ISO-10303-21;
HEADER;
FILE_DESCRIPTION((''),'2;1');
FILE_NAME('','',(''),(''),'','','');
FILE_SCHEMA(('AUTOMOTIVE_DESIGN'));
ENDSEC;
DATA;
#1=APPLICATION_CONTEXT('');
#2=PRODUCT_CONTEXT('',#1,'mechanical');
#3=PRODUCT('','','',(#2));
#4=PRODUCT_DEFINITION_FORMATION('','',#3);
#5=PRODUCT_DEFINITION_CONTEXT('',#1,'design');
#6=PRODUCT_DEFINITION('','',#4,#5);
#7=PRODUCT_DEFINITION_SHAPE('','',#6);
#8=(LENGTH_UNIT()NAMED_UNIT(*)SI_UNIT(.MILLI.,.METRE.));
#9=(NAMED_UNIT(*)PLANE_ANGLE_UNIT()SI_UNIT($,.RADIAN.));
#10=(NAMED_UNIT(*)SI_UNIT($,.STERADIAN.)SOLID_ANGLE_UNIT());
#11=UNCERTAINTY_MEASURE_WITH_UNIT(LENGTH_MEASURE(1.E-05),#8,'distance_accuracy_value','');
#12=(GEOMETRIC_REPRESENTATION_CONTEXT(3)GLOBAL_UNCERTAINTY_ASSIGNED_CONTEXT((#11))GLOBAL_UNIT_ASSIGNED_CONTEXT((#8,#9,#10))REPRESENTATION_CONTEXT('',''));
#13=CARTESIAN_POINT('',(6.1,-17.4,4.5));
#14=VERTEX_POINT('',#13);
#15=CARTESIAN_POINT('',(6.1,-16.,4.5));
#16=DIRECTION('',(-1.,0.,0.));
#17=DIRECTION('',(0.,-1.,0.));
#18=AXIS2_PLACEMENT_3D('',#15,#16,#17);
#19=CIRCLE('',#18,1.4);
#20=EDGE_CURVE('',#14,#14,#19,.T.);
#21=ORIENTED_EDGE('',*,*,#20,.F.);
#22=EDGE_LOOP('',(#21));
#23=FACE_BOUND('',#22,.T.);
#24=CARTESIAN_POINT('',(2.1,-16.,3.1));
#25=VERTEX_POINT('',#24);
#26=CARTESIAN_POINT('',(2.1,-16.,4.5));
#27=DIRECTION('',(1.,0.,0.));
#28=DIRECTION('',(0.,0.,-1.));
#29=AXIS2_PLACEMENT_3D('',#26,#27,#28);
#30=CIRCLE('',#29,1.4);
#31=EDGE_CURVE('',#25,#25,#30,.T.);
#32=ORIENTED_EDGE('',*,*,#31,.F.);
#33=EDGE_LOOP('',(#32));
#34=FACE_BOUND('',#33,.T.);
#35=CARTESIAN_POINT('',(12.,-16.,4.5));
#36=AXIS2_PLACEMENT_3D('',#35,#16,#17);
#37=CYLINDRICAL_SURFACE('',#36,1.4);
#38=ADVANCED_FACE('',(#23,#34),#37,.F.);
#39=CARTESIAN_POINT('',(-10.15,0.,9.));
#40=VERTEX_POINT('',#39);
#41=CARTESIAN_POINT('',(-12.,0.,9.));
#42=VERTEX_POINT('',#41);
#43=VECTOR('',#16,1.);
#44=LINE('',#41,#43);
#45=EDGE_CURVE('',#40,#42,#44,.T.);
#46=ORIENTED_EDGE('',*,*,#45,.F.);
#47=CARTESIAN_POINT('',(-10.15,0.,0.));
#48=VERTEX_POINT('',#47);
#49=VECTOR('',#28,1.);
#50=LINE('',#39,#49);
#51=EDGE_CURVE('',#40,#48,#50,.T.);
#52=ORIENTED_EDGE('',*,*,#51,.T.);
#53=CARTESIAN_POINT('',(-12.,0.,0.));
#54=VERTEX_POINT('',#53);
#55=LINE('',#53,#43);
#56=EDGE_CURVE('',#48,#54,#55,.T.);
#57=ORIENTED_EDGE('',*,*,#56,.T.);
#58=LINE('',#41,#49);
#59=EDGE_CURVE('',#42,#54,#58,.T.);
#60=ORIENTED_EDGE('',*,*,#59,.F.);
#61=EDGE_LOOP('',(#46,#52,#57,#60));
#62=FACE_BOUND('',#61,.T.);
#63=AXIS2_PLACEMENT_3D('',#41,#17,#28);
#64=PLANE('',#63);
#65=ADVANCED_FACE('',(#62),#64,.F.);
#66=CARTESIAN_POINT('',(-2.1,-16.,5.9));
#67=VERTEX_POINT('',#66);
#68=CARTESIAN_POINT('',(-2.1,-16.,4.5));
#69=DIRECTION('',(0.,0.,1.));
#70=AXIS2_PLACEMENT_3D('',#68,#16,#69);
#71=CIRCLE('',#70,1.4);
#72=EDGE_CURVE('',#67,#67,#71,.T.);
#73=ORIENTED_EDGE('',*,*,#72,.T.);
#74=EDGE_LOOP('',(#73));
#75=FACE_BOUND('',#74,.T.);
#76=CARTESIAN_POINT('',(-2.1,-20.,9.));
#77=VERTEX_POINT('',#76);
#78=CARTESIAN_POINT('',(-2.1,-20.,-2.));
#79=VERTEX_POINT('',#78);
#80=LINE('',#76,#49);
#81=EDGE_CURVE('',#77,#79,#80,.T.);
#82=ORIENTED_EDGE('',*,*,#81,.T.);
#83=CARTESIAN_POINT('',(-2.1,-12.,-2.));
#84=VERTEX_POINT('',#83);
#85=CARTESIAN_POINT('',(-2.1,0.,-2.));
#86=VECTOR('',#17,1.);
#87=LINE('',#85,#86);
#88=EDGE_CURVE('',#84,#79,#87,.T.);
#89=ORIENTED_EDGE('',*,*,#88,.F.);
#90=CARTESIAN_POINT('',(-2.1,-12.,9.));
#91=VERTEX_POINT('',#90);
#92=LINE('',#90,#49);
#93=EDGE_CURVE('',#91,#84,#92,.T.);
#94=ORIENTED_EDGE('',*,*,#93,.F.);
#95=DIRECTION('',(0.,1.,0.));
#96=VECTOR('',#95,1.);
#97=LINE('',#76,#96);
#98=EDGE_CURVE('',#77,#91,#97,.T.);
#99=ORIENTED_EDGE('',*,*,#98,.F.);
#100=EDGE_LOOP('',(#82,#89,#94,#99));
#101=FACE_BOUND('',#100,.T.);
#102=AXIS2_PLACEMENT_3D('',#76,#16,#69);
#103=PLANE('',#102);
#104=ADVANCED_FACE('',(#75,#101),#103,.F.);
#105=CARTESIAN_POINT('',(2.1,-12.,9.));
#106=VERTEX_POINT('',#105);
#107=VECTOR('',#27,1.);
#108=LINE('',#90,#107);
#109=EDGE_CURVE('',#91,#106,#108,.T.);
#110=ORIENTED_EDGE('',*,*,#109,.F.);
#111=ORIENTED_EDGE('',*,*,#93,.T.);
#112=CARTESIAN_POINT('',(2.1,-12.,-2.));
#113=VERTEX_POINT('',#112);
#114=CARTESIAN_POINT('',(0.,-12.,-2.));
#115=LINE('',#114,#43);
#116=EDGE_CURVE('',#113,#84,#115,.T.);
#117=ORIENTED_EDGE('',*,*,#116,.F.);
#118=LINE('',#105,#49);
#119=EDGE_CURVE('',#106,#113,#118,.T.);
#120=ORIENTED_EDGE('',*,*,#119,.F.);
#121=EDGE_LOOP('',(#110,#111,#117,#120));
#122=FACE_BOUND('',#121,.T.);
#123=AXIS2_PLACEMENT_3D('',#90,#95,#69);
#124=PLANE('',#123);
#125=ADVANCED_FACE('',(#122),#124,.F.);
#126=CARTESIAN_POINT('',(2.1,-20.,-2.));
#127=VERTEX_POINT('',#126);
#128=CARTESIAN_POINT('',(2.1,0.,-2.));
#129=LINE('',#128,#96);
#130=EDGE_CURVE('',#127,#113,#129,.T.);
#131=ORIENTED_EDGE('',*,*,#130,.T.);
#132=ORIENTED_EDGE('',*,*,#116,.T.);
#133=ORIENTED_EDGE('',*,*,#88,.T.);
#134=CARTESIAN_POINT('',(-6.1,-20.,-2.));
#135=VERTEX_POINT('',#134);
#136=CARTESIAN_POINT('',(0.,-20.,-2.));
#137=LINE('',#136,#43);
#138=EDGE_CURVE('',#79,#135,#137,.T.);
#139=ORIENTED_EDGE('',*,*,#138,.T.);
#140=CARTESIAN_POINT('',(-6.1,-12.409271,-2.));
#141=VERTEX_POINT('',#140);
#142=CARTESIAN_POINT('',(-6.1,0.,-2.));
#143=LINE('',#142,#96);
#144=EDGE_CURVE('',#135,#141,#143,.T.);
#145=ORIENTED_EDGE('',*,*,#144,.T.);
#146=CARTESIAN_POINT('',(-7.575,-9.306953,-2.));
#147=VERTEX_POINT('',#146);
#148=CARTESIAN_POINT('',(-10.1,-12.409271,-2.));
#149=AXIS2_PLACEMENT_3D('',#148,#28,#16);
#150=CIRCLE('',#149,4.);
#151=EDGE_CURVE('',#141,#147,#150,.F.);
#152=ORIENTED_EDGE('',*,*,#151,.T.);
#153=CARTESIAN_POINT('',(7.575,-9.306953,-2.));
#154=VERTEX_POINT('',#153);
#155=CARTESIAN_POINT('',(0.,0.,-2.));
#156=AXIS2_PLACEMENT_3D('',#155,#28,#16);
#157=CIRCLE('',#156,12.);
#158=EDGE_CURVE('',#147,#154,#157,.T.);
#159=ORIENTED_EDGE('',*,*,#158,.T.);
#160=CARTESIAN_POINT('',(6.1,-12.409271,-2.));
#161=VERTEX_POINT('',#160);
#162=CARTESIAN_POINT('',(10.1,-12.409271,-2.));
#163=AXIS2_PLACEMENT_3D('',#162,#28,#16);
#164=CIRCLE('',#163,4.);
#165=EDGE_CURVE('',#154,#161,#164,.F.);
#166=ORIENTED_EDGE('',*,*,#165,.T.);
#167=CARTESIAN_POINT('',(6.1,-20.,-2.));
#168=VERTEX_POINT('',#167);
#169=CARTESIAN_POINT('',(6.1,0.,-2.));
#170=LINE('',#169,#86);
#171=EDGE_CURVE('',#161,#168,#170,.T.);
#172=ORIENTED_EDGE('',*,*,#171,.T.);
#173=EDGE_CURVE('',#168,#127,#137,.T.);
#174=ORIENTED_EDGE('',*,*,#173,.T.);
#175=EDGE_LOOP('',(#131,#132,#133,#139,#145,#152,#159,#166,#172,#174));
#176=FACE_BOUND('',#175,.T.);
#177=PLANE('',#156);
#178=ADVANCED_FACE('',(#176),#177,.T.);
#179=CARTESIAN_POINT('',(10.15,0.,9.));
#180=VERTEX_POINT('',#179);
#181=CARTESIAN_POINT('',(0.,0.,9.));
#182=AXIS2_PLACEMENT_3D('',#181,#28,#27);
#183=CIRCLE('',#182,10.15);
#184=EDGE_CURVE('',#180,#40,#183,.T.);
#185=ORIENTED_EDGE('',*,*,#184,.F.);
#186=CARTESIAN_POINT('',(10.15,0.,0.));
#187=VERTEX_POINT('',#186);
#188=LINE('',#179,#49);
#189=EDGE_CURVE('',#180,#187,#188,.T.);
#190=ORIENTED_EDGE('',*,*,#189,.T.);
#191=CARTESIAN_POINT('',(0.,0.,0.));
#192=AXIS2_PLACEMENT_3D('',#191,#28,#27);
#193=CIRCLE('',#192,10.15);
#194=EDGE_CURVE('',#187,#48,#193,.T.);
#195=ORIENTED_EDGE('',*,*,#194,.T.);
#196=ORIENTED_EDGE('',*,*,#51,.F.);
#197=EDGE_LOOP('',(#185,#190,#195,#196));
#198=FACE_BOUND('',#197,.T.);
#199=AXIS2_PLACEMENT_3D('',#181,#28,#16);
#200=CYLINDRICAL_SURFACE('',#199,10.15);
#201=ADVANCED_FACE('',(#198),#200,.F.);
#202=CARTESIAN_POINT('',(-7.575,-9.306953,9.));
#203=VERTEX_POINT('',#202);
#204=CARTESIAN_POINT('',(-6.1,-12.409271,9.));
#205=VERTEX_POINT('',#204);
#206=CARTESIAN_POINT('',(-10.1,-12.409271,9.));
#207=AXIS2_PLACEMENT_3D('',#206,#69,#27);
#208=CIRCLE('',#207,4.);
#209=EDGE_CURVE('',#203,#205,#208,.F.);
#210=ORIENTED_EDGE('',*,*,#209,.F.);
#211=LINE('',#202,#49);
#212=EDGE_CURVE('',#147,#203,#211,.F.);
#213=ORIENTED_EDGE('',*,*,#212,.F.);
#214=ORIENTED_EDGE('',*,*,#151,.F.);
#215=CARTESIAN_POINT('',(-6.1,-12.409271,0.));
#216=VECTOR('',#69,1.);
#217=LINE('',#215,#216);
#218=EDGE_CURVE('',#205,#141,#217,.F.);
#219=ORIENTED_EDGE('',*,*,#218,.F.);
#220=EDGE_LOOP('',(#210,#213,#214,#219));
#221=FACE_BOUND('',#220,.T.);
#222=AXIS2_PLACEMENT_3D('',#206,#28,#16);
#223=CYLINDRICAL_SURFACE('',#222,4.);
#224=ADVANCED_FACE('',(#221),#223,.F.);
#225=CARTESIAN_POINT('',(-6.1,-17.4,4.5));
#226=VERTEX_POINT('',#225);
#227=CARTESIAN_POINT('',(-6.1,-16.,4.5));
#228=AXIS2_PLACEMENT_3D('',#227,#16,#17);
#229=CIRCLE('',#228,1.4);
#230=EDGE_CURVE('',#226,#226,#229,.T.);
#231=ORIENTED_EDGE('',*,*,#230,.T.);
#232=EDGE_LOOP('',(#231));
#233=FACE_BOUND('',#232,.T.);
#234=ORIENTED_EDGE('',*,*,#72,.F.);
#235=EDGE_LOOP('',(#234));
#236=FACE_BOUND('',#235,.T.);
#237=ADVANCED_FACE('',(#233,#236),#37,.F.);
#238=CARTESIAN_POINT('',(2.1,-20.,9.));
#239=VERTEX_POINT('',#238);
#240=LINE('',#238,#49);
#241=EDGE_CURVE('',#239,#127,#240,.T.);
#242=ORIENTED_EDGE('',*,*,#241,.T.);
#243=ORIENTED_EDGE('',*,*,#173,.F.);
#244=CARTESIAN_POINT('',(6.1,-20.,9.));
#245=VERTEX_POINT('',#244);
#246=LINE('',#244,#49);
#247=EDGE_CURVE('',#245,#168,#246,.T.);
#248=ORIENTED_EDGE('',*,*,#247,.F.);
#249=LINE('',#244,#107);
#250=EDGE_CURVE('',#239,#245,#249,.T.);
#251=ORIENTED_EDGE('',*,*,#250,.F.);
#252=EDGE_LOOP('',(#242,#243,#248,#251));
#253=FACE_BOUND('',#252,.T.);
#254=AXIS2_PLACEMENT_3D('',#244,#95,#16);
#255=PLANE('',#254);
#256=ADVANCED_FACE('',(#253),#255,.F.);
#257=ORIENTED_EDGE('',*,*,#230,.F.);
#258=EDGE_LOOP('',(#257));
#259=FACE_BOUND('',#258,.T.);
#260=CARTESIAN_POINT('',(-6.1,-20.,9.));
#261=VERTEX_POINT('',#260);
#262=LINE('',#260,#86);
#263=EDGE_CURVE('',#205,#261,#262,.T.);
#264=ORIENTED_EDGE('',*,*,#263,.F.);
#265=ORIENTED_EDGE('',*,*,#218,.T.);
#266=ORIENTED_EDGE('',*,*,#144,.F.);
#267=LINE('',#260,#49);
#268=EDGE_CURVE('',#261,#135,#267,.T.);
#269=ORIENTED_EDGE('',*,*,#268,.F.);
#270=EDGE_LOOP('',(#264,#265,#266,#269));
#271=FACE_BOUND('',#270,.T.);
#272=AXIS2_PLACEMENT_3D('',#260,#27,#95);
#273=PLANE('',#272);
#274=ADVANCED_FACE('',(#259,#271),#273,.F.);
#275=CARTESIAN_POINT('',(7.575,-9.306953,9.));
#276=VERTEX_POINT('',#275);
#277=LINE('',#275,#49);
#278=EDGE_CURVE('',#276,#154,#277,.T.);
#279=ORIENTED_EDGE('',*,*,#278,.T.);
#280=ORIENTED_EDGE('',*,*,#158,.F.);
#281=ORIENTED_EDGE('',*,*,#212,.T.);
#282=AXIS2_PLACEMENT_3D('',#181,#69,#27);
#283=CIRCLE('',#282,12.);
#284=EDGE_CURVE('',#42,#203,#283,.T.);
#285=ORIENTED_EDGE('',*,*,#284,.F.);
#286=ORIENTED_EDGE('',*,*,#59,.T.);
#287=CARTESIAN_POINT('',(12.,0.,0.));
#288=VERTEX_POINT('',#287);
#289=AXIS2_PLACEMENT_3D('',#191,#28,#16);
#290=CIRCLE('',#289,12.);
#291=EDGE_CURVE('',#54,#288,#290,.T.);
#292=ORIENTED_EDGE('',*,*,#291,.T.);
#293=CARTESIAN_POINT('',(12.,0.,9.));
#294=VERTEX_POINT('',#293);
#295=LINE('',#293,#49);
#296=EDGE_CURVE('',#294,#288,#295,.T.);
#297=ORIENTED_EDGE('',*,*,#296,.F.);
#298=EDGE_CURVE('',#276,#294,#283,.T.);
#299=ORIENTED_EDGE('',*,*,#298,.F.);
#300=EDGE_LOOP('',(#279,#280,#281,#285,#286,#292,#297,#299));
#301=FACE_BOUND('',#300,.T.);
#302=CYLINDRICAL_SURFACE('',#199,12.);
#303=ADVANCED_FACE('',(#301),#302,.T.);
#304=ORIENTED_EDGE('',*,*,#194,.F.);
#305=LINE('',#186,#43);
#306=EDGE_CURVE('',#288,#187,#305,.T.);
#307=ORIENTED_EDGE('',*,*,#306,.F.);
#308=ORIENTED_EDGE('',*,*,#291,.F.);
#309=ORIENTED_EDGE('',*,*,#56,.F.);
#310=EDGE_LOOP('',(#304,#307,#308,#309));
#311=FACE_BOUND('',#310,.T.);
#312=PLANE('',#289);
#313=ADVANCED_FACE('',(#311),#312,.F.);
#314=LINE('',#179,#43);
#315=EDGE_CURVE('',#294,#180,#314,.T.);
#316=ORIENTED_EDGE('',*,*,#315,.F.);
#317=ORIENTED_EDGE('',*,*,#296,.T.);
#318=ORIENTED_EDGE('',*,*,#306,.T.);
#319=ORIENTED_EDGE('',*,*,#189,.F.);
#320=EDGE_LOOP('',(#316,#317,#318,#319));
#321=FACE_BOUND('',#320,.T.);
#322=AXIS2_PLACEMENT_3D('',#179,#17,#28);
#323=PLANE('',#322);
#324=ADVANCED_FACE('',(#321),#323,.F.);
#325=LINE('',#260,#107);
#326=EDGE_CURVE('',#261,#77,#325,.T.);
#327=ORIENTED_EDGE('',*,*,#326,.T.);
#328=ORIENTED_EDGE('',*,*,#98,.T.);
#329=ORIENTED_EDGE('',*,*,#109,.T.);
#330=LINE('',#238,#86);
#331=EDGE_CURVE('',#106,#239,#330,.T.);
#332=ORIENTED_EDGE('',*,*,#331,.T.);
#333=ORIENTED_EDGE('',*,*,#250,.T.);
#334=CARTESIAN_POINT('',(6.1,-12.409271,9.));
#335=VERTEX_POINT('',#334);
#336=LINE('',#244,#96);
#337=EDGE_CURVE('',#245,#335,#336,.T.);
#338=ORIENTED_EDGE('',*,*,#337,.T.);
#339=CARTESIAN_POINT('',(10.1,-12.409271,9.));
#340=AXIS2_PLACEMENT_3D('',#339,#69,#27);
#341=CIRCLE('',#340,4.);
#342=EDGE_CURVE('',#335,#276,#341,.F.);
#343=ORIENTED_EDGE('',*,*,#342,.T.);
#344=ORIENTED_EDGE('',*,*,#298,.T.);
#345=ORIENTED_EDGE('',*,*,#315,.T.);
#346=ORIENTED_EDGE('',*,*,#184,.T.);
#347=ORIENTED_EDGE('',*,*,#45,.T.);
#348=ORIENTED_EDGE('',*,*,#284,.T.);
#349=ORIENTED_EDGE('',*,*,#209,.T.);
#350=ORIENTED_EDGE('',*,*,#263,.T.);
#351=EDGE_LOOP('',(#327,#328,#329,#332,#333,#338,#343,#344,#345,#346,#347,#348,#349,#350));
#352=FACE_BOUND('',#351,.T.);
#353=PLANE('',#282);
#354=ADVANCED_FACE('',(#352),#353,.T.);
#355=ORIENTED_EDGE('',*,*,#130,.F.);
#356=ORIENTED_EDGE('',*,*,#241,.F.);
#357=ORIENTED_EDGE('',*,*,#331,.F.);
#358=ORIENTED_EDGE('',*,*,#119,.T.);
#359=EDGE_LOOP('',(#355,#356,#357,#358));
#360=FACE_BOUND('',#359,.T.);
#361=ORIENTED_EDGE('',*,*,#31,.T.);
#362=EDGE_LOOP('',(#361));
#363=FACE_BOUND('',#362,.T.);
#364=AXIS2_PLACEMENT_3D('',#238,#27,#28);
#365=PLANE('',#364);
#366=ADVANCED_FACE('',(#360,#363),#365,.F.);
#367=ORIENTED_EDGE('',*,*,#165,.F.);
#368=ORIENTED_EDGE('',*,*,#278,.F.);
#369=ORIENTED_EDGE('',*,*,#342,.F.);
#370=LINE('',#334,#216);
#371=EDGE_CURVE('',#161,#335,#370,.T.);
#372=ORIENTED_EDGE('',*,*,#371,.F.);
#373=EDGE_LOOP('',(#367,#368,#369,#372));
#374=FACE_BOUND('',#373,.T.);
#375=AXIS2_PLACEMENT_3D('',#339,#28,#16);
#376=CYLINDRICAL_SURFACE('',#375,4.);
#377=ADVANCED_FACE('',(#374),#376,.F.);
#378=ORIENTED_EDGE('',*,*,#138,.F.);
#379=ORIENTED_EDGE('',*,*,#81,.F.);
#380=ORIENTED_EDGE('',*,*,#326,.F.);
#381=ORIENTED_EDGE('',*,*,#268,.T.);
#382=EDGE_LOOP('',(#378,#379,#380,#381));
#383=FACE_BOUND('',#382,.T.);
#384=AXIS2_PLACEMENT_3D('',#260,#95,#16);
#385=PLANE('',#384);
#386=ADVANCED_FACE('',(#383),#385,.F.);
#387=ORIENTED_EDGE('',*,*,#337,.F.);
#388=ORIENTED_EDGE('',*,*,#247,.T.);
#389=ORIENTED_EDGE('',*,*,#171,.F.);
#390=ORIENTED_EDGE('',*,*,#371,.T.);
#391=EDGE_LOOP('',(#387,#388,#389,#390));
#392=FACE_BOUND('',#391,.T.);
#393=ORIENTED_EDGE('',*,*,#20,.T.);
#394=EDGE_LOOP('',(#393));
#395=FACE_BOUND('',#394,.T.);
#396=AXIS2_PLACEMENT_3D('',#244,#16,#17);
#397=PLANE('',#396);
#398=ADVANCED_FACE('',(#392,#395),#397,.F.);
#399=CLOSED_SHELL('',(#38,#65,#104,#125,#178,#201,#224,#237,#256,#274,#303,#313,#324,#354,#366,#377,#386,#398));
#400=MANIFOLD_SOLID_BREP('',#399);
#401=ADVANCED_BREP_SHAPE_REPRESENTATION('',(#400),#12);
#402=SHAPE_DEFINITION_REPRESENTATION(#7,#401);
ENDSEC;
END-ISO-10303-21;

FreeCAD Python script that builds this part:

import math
import FreeCAD as App
import Part
import Sketcher
from FreeCAD import Vector


def edges_at(feature, points):
    """Names of the edges that pass closest to the given points."""
    edges = feature.Shape.Edges
    near = lambda p: min(range(len(edges)), key=lambda i: edges[i].distToShape(Part.Vertex(*p))[0])
    return sorted({f"Edge{near(p) + 1}" for p in points})

doc = App.newDocument("Part")
body = doc.addObject("PartDesign::Body", "Body")

# Sketch on XY plane
sketch1 = body.newObject("Sketcher::SketchObject", "Sketch")
sketch1.AttachmentSupport = (doc.getObject("XY_Plane"), [""])
sketch1.MapMode = "FlatFace"
sketch1.addGeometry([
    Part.LineSegment(Vector(-6.1, -20, 0), Vector(-2.1, -20, 0)),  # 0
    Part.LineSegment(Vector(-2.1, -20, 0), Vector(-2.1, -12, 0)),  # 1
    Part.LineSegment(Vector(-2.1, -12, 0), Vector(2.1, -12, 0)),  # 2
    Part.LineSegment(Vector(2.1, -12, 0), Vector(2.1, -20, 0)),  # 3
    Part.LineSegment(Vector(2.1, -20, 0), Vector(6.1, -20, 0)),  # 4
    Part.LineSegment(Vector(6.1, -20, 0), Vector(6.1, -10.3, 0)),  # 5
    Part.ArcOfCircle(Part.Circle(Vector(0, 0, 0), Vector(0, 0, 1), 12), math.radians(-59), math.radians(0)),  # 6
    Part.LineSegment(Vector(12, 0, 0), Vector(10.2, 0, 0)),  # 7
    Part.ArcOfCircle(Part.Circle(Vector(0, 0, 0), Vector(0, 0, 1), 10.2), math.radians(180), math.radians(360)),  # 8
    Part.LineSegment(Vector(-10.2, 0, 0), Vector(-12, 0, 0)),  # 9
    Part.ArcOfCircle(Part.Circle(Vector(0, 0, 0), Vector(0, 0, 1), 12), math.radians(-180), math.radians(-121)),  # 10
    Part.LineSegment(Vector(-6.1, -10.3, 0), Vector(-6.1, -20, 0)),  # 11
], False)
sketch1.addConstraint([
    Sketcher.Constraint("Coincident", 0, 2, 1, 1),
    Sketcher.Constraint("Coincident", 1, 2, 2, 1),
    Sketcher.Constraint("Coincident", 2, 2, 3, 1),
    Sketcher.Constraint("Coincident", 3, 2, 4, 1),
    Sketcher.Constraint("Coincident", 4, 2, 5, 1),
    Sketcher.Constraint("Coincident", 5, 2, 6, 1),
    Sketcher.Constraint("Coincident", 6, 2, 7, 1),
    Sketcher.Constraint("Coincident", 7, 2, 8, 2),
    Sketcher.Constraint("Coincident", 8, 1, 9, 1),
    Sketcher.Constraint("Coincident", 9, 2, 10, 1),
    Sketcher.Constraint("Coincident", 10, 2, 11, 1),
    Sketcher.Constraint("Coincident", 11, 2, 0, 1),
    Sketcher.Constraint("Horizontal", 0),
    Sketcher.Constraint("Vertical", 1),
    Sketcher.Constraint("Horizontal", 2),
    Sketcher.Constraint("Vertical", 3),
    Sketcher.Constraint("Horizontal", 4),
    Sketcher.Constraint("Vertical", 5),
    Sketcher.Constraint("Horizontal", 7),
    Sketcher.Constraint("Horizontal", 9),
    Sketcher.Constraint("Vertical", 11),
    Sketcher.Constraint("Coincident", 6, 3, -1, 1),
    Sketcher.Constraint("Coincident", 8, 3, -1, 1),
    Sketcher.Constraint("Coincident", 10, 3, -1, 1),
    Sketcher.Constraint("Equal", 6, 10),
    Sketcher.Constraint("Symmetric", 0, 2, 3, 2, -2),
    Sketcher.Constraint("PointOnObject", 6, 2, -1),
    Sketcher.Constraint("PointOnObject", 8, 1, -1),
    Sketcher.Constraint("Horizontal", 5, 2, 10, 2),
    Sketcher.Constraint("Radius", 6, 12.0),
    Sketcher.Constraint("DistanceX", 0, 1, 0, 2, 4.0),
    Sketcher.Constraint("DistanceY", 1, 1, 1, 2, 8.0),
    Sketcher.Constraint("Radius", 8, 10.15),
    Sketcher.Constraint("DistanceX", 2, 1, 2, 2, 4.2),
    Sketcher.Constraint("DistanceY", 0, 2, -1, 1, 20.0),
])
pad1 = body.newObject("PartDesign::Pad", "Pad")
pad1.Profile = sketch1
pad1.Length = 9

# Sketch on YZ plane
sketch2 = body.newObject("Sketcher::SketchObject", "Sketch001")
sketch2.AttachmentSupport = (doc.getObject("YZ_Plane"), [""])
sketch2.MapMode = "FlatFace"
sketch2.AttachmentOffset = App.Placement(Vector(0, 0, -6.1), App.Rotation())
sketch2.addGeometry(Part.Circle(Vector(-16, 4.5, 0), Vector(0, 0, 1), 1.4), False)
sketch2.addConstraint([
    Sketcher.Constraint("Diameter", 0, 2.8),
    Sketcher.Constraint("DistanceX", 0, 3, -1, 1, 16.0),
    Sketcher.Constraint("DistanceY", -1, 1, 0, 3, 4.5),
])
pocket1 = body.newObject("PartDesign::Pocket", "Pocket")
pocket1.Profile = sketch2
pocket1.Type = "ThroughAll"
pocket1.Reversed = True
doc.recompute()

fillet = body.newObject("PartDesign::Fillet", "Fillet")
fillet.Base = (pocket1, edges_at(pocket1, [(-6.1, -10.334, 4.5), (6.1, -10.334, 4.5)]))
fillet.Radius = 4

# Sketch on XY plane
sketch3 = body.newObject("Sketcher::SketchObject", "Sketch002")
sketch3.AttachmentSupport = (doc.getObject("XY_Plane"), [""])
sketch3.MapMode = "FlatFace"
sketch3.AttachmentOffset = App.Placement(Vector(0, 0, -2), App.Rotation())
sketch3.addGeometry([
    Part.ArcOfCircle(Part.Circle(Vector(0, 0, 0), Vector(0, 0, 1), 12), math.radians(0), math.radians(180)),  # 0
    Part.ArcOfCircle(Part.Circle(Vector(0, 0, 0), Vector(0, 0, 1), 12), math.radians(-51), math.radians(0)),  # 1
    Part.ArcOfCircle(Part.Circle(Vector(10.1, -12.4, 0), Vector(0, 0, 1), 4), math.radians(129), math.radians(180)),  # 2
    Part.LineSegment(Vector(6.1, -12.4, 0), Vector(6.1, -20, 0)),  # 3
    Part.LineSegment(Vector(6.1, -20, 0), Vector(2.1, -20, 0)),  # 4
    Part.LineSegment(Vector(2.1, -20, 0), Vector(2.1, -12, 0)),  # 5
    Part.LineSegment(Vector(2.1, -12, 0), Vector(-2.1, -12, 0)),  # 6
    Part.LineSegment(Vector(-2.1, -12, 0), Vector(-2.1, -20, 0)),  # 7
    Part.LineSegment(Vector(-2.1, -20, 0), Vector(-6.1, -20, 0)),  # 8
    Part.LineSegment(Vector(-6.1, -20, 0), Vector(-6.1, -12.4, 0)),  # 9
    Part.ArcOfCircle(Part.Circle(Vector(-10.1, -12.4, 0), Vector(0, 0, 1), 4), math.radians(0), math.radians(51)),  # 10
    Part.ArcOfCircle(Part.Circle(Vector(0, 0, 0), Vector(0, 0, 1), 12), math.radians(180), math.radians(231)),  # 11
], False)
sketch3.addConstraint([
    Sketcher.Constraint("Tangent", 0, 1, 1, 2),
    Sketcher.Constraint("Tangent", 1, 1, 2, 1),
    Sketcher.Constraint("Tangent", 2, 2, 3, 1),
    Sketcher.Constraint("Coincident", 3, 2, 4, 1),
    Sketcher.Constraint("Coincident", 4, 2, 5, 1),
    Sketcher.Constraint("Coincident", 5, 2, 6, 1),
    Sketcher.Constraint("Coincident", 6, 2, 7, 1),
    Sketcher.Constraint("Coincident", 7, 2, 8, 1),
    Sketcher.Constraint("Coincident", 8, 2, 9, 1),
    Sketcher.Constraint("Tangent", 9, 2, 10, 1),
    Sketcher.Constraint("Tangent", 10, 2, 11, 2),
    Sketcher.Constraint("Tangent", 11, 1, 0, 2),
    Sketcher.Constraint("Vertical", 3),
    Sketcher.Constraint("Horizontal", 4),
    Sketcher.Constraint("Vertical", 5),
    Sketcher.Constraint("Horizontal", 6),
    Sketcher.Constraint("Vertical", 7),
    Sketcher.Constraint("Horizontal", 8),
    Sketcher.Constraint("Vertical", 9),
    Sketcher.Constraint("Coincident", 0, 3, -1, 1),
    Sketcher.Constraint("Equal", 0, 1),
    Sketcher.Constraint("Equal", 2, 10),
    Sketcher.Constraint("Equal", 1, 11),
    Sketcher.Constraint("Symmetric", 4, 2, 7, 2, -2),
    Sketcher.Constraint("PointOnObject", 0, 1, -1),
    Sketcher.Constraint("PointOnObject", 11, 1, -1),
    Sketcher.Constraint("Horizontal", 2, 3, 10, 3),
    Sketcher.Constraint("Radius", 0, 12.0),
    Sketcher.Constraint("Radius", 2, 4.0),
    Sketcher.Constraint("DistanceX", 4, 2, 4, 1, 4.0),
    Sketcher.Constraint("DistanceY", 5, 1, 5, 2, 8.0),
    Sketcher.Constraint("DistanceX", 6, 2, 6, 1, 4.2),
    Sketcher.Constraint("DistanceY", 3, 2, -1, 1, 20.0),
])
pad2 = body.newObject("PartDesign::Pad", "Pad001")
pad2.Profile = sketch3
pad2.Length = 2

doc.recompute()
